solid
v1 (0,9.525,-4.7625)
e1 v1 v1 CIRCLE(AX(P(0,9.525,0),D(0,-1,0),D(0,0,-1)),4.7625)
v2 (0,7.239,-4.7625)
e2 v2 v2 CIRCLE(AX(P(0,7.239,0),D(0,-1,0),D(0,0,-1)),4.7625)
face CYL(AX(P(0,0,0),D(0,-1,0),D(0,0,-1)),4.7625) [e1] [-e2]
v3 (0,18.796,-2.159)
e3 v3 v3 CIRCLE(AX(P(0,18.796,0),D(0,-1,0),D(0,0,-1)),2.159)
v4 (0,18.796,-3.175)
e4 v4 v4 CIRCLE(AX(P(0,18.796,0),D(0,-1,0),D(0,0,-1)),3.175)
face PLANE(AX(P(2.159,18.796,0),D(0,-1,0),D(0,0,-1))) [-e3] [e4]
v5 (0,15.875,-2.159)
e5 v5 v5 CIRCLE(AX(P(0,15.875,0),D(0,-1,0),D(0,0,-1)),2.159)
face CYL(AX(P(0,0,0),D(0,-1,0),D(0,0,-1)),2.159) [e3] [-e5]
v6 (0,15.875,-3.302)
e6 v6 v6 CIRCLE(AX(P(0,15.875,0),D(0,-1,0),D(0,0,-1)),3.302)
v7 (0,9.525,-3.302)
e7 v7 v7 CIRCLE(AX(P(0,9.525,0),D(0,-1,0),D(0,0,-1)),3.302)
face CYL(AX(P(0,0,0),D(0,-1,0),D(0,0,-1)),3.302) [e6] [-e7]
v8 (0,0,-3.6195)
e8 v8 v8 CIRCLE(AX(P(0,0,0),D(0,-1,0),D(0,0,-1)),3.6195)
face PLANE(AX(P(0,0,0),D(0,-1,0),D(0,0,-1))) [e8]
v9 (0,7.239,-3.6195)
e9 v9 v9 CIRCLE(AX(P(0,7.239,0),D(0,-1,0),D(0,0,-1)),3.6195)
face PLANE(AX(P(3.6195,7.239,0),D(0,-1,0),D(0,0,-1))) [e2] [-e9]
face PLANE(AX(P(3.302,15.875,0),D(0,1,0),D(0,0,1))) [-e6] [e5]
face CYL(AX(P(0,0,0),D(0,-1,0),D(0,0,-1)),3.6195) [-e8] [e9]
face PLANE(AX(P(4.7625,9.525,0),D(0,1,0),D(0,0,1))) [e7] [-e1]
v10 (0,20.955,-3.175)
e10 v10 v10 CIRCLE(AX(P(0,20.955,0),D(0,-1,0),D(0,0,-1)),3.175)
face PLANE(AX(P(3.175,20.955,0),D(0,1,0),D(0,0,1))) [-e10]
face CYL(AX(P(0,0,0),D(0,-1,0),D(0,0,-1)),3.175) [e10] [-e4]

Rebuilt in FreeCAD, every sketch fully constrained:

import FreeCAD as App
import Part
import Sketcher
from FreeCAD import Vector
Q = App.Units.Quantity


def add_polygon(sketch, points):
    """Adds a closed chain of lines whose ends are joined by coincident constraints."""
    first, n = sketch.GeometryCount, len(points)
    for a, b in zip(points, points[1:] + points[:1]):
        sketch.addGeometry(Part.LineSegment(App.Vector(*a, 0), App.Vector(*b, 0)), False)
    for i in range(n):
        sketch.addConstraint(Sketcher.Constraint("Coincident", first + i, 2, first + (i + 1) % n, 1))

doc = App.newDocument("Part")
body = doc.addObject("PartDesign::Body", "Body")

# Sketch on XY plane
sketch1 = doc.addObject("Sketcher::SketchObject", "Sketch")
body.addObject(sketch1)
sketch1.AttachmentSupport = (doc.XY_Plane, [""])
sketch1.MapMode = "FlatFace"
add_polygon(sketch1, [(0, 0), (3.6, 0), (3.6, 7.2), (4.8, 7.2), (4.8, 9.5), (3.3, 9.5), (3.3, 15.9), (2.2, 15.9), (2.2, 18.8), (3.2, 18.8), (3.2, 21), (0, 21)])  # lines 0-11
sketch1.addConstraint(Sketcher.Constraint("Horizontal", 0))
sketch1.addConstraint(Sketcher.Constraint("Vertical", 1))
sketch1.addConstraint(Sketcher.Constraint("Horizontal", 2))
sketch1.addConstraint(Sketcher.Constraint("Vertical", 3))
sketch1.addConstraint(Sketcher.Constraint("Horizontal", 4))
sketch1.addConstraint(Sketcher.Constraint("Vertical", 5))
sketch1.addConstraint(Sketcher.Constraint("Horizontal", 6))
sketch1.addConstraint(Sketcher.Constraint("Vertical", 7))
sketch1.addConstraint(Sketcher.Constraint("Horizontal", 8))
sketch1.addConstraint(Sketcher.Constraint("Vertical", 9))
sketch1.addConstraint(Sketcher.Constraint("Horizontal", 10))
sketch1.addConstraint(Sketcher.Constraint("Vertical", 11))
sketch1.addConstraint(Sketcher.Constraint("Coincident", 11, 2, -1, 1))
sketch1.addConstraint(Sketcher.Constraint("Equal", 2, 6))
sketch1.addConstraint(Sketcher.Constraint("DistanceX", 8, 1, 8, 2, Q("0.04 in")))
sketch1.addConstraint(Sketcher.Constraint("DistanceY", 3, 1, 3, 2, Q("0.09 in")))
sketch1.addConstraint(Sketcher.Constraint("DistanceY", 5, 1, 5, 2, Q("0.25 in")))
sketch1.addConstraint(Sketcher.Constraint("DistanceY", 5, 2, 9, 2, Q("0.2 in")))
sketch1.addConstraint(Sketcher.Constraint("DistanceX", 2, 1, 2, 2, Q("0.045 in")))
sketch1.addConstraint(Sketcher.Constraint("DistanceX", 10, 2, 10, 1, Q("0.125 in")))
sketch1.addConstraint(Sketcher.Constraint("DistanceY", 1, 1, 1, 2, Q("0.285 in")))
sketch1.addConstraint(Sketcher.Constraint("DistanceY", 7, 1, 7, 2, Q("0.115 in")))
sketch1.addConstraint(Sketcher.Constraint("DistanceX", 0, 1, 0, 2, Q("0.1425 in")))
revolution = doc.addObject("PartDesign::Revolution", "Revolution")
body.addObject(revolution)
revolution.Profile = sketch1
revolution.ReferenceAxis = (sketch1, ["V_Axis"])
revolution.Angle = 360

doc.recompute()
